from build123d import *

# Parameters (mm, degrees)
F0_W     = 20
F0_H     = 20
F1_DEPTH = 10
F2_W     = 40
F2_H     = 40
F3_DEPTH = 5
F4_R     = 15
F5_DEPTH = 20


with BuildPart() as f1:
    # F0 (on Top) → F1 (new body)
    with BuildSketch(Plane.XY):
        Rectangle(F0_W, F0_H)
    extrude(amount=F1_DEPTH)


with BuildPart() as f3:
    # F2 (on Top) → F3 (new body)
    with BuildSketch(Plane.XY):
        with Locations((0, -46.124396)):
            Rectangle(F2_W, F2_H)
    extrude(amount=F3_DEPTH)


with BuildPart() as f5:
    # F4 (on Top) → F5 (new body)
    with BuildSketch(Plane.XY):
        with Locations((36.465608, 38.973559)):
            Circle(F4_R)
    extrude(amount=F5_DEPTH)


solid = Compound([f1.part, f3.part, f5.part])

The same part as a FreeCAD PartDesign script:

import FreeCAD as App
import Part
import Sketcher

V = App.Vector
Q = App.Units.Quantity

doc = App.newDocument("Part")
body = doc.addObject("PartDesign::Body", "Body")

# Sketch on XY plane
sketch1 = doc.addObject("Sketcher::SketchObject", "Sketch")
body.addObject(sketch1)
sketch1.AttachmentSupport = (doc.XY_Plane, [""])
sketch1.MapMode = "FlatFace"
sketch1.addGeometry([
    Part.LineSegment(V(-10, 10, 0), V(-10, -10, 0)),
    Part.LineSegment(V(-10, -10, 0), V(10, -10, 0)),
    Part.LineSegment(V(10, -10, 0), V(10, 10, 0)),
    Part.LineSegment(V(10, 10, 0), V(-10, 10, 0)),
], False)
sketch1.addConstraint([
    Sketcher.Constraint("Coincident", 0, 2, 1, 1),
    Sketcher.Constraint("Coincident", 1, 2, 2, 1),
    Sketcher.Constraint("Coincident", 2, 2, 3, 1),
    Sketcher.Constraint("Coincident", 3, 2, 0, 1),
    Sketcher.Constraint("Vertical", 0),
    Sketcher.Constraint("Horizontal", 1),
    Sketcher.Constraint("Vertical", 2),
    Sketcher.Constraint("Horizontal", 3),
    Sketcher.Constraint("Symmetric", 0, 2, 2, 2, -1, 1),
    Sketcher.Constraint("Equal", 3, 0),
    Sketcher.Constraint("DistanceX", 1, 1, 1, 2, Q("20 mm")),
])
pad1 = doc.addObject("PartDesign::Pad", "Pad")
body.addObject(pad1)
pad1.Profile = sketch1
pad1.Length = 10
body2 = doc.addObject("PartDesign::Body", "Body001")

# Sketch on XY plane
sketch2 = doc.addObject("Sketcher::SketchObject", "Sketch001")
body2.addObject(sketch2)
sketch2.AttachmentSupport = (doc.getObject("XY_Plane001"), [""])
sketch2.MapMode = "FlatFace"
sketch2.addGeometry([
    Part.LineSegment(V(-20, -26, 0), V(-20, -66, 0)),
    Part.LineSegment(V(-20, -66, 0), V(20, -66, 0)),
    Part.LineSegment(V(20, -66, 0), V(20, -26, 0)),
    Part.LineSegment(V(20, -26, 0), V(-20, -26, 0)),
], False)
sketch2.addConstraint([
    Sketcher.Constraint("Coincident", 0, 2, 1, 1),
    Sketcher.Constraint("Coincident", 1, 2, 2, 1),
    Sketcher.Constraint("Coincident", 2, 2, 3, 1),
    Sketcher.Constraint("Coincident", 3, 2, 0, 1),
    Sketcher.Constraint("Vertical", 0),
    Sketcher.Constraint("Horizontal", 1),
    Sketcher.Constraint("Vertical", 2),
    Sketcher.Constraint("Horizontal", 3),
    Sketcher.Constraint("Equal", 3, 0),
    Sketcher.Constraint("DistanceX", 1, 1, 1, 2, Q("40 mm")),
    Sketcher.Constraint("DistanceX", 0, 2, -1, 1, Q("20 mm")),
    Sketcher.Constraint("DistanceY", 0, 2, -1, 1, Q("66.124396 mm")),
])
pad2 = doc.addObject("PartDesign::Pad", "Pad001")
body2.addObject(pad2)
pad2.Profile = sketch2
pad2.Length = 5
body3 = doc.addObject("PartDesign::Body", "Body002")

# Sketch on XY plane
sketch3 = doc.addObject("Sketcher::SketchObject", "Sketch002")
body3.addObject(sketch3)
sketch3.AttachmentSupport = (doc.getObject("XY_Plane002"), [""])
sketch3.MapMode = "FlatFace"
sketch3.addGeometry(Part.Circle(V(36, 39, 0), V(0, 0, 1), 15), False)
sketch3.addConstraint([
    Sketcher.Constraint("Diameter", 0, Q("30 mm")),
    Sketcher.Constraint("DistanceX", -1, 1, 0, 3, Q("36.465608 mm")),
    Sketcher.Constraint("DistanceY", -1, 1, 0, 3, Q("38.973559 mm")),
])
pad3 = doc.addObject("PartDesign::Pad", "Pad002")
body3.addObject(pad3)
pad3.Profile = sketch3
pad3.Length = 20

doc.recompute()
